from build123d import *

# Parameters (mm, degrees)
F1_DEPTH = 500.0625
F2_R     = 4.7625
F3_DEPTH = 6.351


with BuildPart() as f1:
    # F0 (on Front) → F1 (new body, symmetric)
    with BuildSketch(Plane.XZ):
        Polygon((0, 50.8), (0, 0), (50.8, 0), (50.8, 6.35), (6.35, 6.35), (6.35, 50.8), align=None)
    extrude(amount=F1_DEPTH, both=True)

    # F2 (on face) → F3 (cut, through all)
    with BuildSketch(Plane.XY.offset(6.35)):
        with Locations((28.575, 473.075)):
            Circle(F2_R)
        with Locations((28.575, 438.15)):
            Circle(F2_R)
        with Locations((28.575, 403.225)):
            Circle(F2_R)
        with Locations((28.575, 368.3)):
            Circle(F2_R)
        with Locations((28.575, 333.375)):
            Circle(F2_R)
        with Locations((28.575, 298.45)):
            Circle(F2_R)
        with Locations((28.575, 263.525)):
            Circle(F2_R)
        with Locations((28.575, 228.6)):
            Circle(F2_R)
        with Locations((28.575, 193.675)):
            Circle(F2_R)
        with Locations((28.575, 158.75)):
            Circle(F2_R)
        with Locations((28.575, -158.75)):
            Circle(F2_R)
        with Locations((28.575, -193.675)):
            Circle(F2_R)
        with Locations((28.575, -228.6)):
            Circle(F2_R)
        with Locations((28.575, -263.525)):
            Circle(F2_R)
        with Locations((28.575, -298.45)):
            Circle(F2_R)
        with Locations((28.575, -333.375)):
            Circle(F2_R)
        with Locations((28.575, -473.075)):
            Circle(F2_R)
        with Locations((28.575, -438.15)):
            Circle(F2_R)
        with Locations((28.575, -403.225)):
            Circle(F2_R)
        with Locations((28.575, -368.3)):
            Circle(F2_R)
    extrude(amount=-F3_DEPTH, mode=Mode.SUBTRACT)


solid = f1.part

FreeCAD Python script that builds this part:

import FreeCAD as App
import Part
import Sketcher
Q = App.Units.Quantity


def add_polygon(sketch, points):
    """Adds a closed chain of lines whose ends are joined by coincident constraints."""
    first, n = sketch.GeometryCount, len(points)
    for a, b in zip(points, points[1:] + points[:1]):
        sketch.addGeometry(Part.LineSegment(App.Vector(*a, 0), App.Vector(*b, 0)), False)
    for i in range(n):
        sketch.addConstraint(Sketcher.Constraint("Coincident", first + i, 2, first + (i + 1) % n, 1))

doc = App.newDocument("Part")
params = doc.addObject("Spreadsheet::Sheet", "Params")
for row, (alias, value) in enumerate([
    ("sketch1_width", "2 in"),
    ("sketch1_width2", "1.75 in"),
    ("pad1_length", "39.375 in"),
    ("sketch2_diameter", "0.375 in"),
], start=1):
    params.set(f"A{row}", alias)
    params.set(f"B{row}", "=" + value)
    params.setAlias(f"B{row}", alias)

body = doc.addObject("PartDesign::Body", "Body")

# Sketch on XZ plane
sketch1 = body.newObject("Sketcher::SketchObject", "Sketch")
sketch1.AttachmentSupport = (doc.getObject("XZ_Plane"), [""])
sketch1.MapMode = "FlatFace"
add_polygon(sketch1, [(0, 51), (0, 0), (51, 0), (51, 6), (6, 6), (6, 51)])  # lines 0-5
sketch1.addConstraint([
    Sketcher.Constraint("Vertical", 0),
    Sketcher.Constraint("Horizontal", 1),
    Sketcher.Constraint("Vertical", 2),
    Sketcher.Constraint("Horizontal", 3),
    Sketcher.Constraint("Vertical", 4),
    Sketcher.Constraint("Horizontal", 5),
    Sketcher.Constraint("Coincident", 0, 2, -1, 1),
    Sketcher.Constraint("Equal", 1, 0),
    Sketcher.Constraint("Equal", 5, 2),
    Sketcher.Constraint("DistanceX", 1, 1, 1, 2, Q("2 in")),
    Sketcher.Constraint("DistanceX", 3, 2, 3, 1, Q("1.75 in")),
])
sketch1.setExpression("Constraints[15]", "Params.sketch1_width")
sketch1.setExpression("Constraints[16]", "Params.sketch1_width2")
pad1 = body.newObject("PartDesign::Pad", "Pad")
pad1.Profile = sketch1
pad1.setExpression("Length", "Params.pad1_length")
pad1.Midplane = True

# Sketch on XY plane
sketch2 = body.newObject("Sketcher::SketchObject", "Sketch001")
sketch2.AttachmentSupport = (doc.getObject("XY_Plane"), [""])
sketch2.MapMode = "FlatFace"
sketch2.AttachmentOffset = App.Placement(App.Vector(0, 0, 0.25 * 25.4), App.Rotation())
sketch2.addGeometry([
    Part.Circle(App.Vector(28.6, 473.1, 0), App.Vector(0, 0, 1), 4.8),  # 0
    Part.Circle(App.Vector(28.6, 438.1, 0), App.Vector(0, 0, 1), 4.8),  # 1
    Part.Circle(App.Vector(28.6, 403.2, 0), App.Vector(0, 0, 1), 4.8),  # 2
    Part.Circle(App.Vector(28.6, 368.3, 0), App.Vector(0, 0, 1), 4.8),  # 3
    Part.Circle(App.Vector(28.6, 333.4, 0), App.Vector(0, 0, 1), 4.8),  # 4
    Part.Circle(App.Vector(28.6, 298.4, 0), App.Vector(0, 0, 1), 4.8),  # 5
    Part.Circle(App.Vector(28.6, 263.5, 0), App.Vector(0, 0, 1), 4.8),  # 6
    Part.Circle(App.Vector(28.6, 228.6, 0), App.Vector(0, 0, 1), 4.8),  # 7
    Part.Circle(App.Vector(28.6, 193.7, 0), App.Vector(0, 0, 1), 4.8),  # 8
    Part.Circle(App.Vector(28.6, 158.8, 0), App.Vector(0, 0, 1), 4.8),  # 9
    Part.Circle(App.Vector(28.6, -158.8, 0), App.Vector(0, 0, 1), 4.8),  # 10
    Part.Circle(App.Vector(28.6, -193.7, 0), App.Vector(0, 0, 1), 4.8),  # 11
    Part.Circle(App.Vector(28.6, -228.6, 0), App.Vector(0, 0, 1), 4.8),  # 12
    Part.Circle(App.Vector(28.6, -263.5, 0), App.Vector(0, 0, 1), 4.8),  # 13
    Part.Circle(App.Vector(28.6, -298.4, 0), App.Vector(0, 0, 1), 4.8),  # 14
    Part.Circle(App.Vector(28.6, -333.4, 0), App.Vector(0, 0, 1), 4.8),  # 15
    Part.Circle(App.Vector(28.6, -473.1, 0), App.Vector(0, 0, 1), 4.8),  # 16
    Part.Circle(App.Vector(28.6, -438.1, 0), App.Vector(0, 0, 1), 4.8),  # 17
    Part.Circle(App.Vector(28.6, -403.2, 0), App.Vector(0, 0, 1), 4.8),  # 18
    Part.Circle(App.Vector(28.6, -368.3, 0), App.Vector(0, 0, 1), 4.8),  # 19
], False)
sketch2.addConstraint([
    Sketcher.Constraint("Equal", 0, 1),
    Sketcher.Constraint("Equal", 1, 2),
    Sketcher.Constraint("Equal", 2, 3),
    Sketcher.Constraint("Equal", 3, 4),
    Sketcher.Constraint("Equal", 4, 5),
    Sketcher.Constraint("Equal", 5, 6),
    Sketcher.Constraint("Equal", 6, 7),
    Sketcher.Constraint("Equal", 7, 8),
    Sketcher.Constraint("Equal", 8, 9),
    Sketcher.Constraint("Equal", 9, 10),
    Sketcher.Constraint("Equal", 10, 11),
    Sketcher.Constraint("Equal", 11, 12),
    Sketcher.Constraint("Equal", 12, 13),
    Sketcher.Constraint("Equal", 13, 14),
    Sketcher.Constraint("Equal", 14, 15),
    Sketcher.Constraint("Equal", 15, 16),
    Sketcher.Constraint("Equal", 16, 17),
    Sketcher.Constraint("Equal", 17, 18),
    Sketcher.Constraint("Equal", 18, 19),
    Sketcher.Constraint("Symmetric", 9, 3, 10, 3, -1),
    Sketcher.Constraint("Symmetric", 8, 3, 11, 3, -1),
    Sketcher.Constraint("Symmetric", 7, 3, 12, 3, -1),
    Sketcher.Constraint("Symmetric", 6, 3, 13, 3, -1),
    Sketcher.Constraint("Symmetric", 5, 3, 14, 3, -1),
    Sketcher.Constraint("Symmetric", 4, 3, 15, 3, -1),
    Sketcher.Constraint("Symmetric", 0, 3, 16, 3, -1),
    Sketcher.Constraint("Symmetric", 1, 3, 17, 3, -1),
    Sketcher.Constraint("Symmetric", 2, 3, 18, 3, -1),
    Sketcher.Constraint("Symmetric", 3, 3, 19, 3, -1),
    Sketcher.Constraint("Vertical", 0, 3, 1, 3),
    Sketcher.Constraint("Vertical", 1, 3, 2, 3),
    Sketcher.Constraint("Vertical", 2, 3, 3, 3),
    Sketcher.Constraint("Vertical", 3, 3, 4, 3),
    Sketcher.Constraint("Vertical", 4, 3, 5, 3),
    Sketcher.Constraint("Vertical", 5, 3, 6, 3),
    Sketcher.Constraint("Vertical", 6, 3, 7, 3),
    Sketcher.Constraint("Vertical", 7, 3, 8, 3),
    Sketcher.Constraint("Vertical", 8, 3, 9, 3),
    Sketcher.Constraint("Diameter", 0, Q("0.375 in")),
    Sketcher.Constraint("DistanceY", -1, 1, 7, 3, Q("9 in")),
    Sketcher.Constraint("DistanceY", 10, 3, 5, 3, Q("18 in")),
    Sketcher.Constraint("DistanceY", 11, 3, 6, 3, Q("18 in")),
    Sketcher.Constraint("DistanceY", 16, 3, 11, 3, Q("11 in")),
    Sketcher.Constraint("DistanceY", -1, 1, 3, 3, Q("14.5 in")),
    Sketcher.Constraint("DistanceY", 4, 3, 0, 3, Q("5.5 in")),
    Sketcher.Constraint("DistanceY", 5, 3, 1, 3, Q("5.5 in")),
    Sketcher.Constraint("DistanceY", 6, 3, 2, 3, Q("5.5 in")),
    Sketcher.Constraint("DistanceY", 9, 3, 5, 3, Q("5.5 in")),
    Sketcher.Constraint("DistanceY", 2, 3, 0, 3, Q("2.75 in")),
    Sketcher.Constraint("DistanceX", -1, 1, 0, 3, Q("1.125 in")),
])
sketch2.setExpression("Constraints[38]", "Params.sketch2_diameter")
pocket1 = body.newObject("PartDesign::Pocket", "Pocket")
pocket1.Profile = sketch2
pocket1.Type = "ThroughAll"

doc.recompute()
